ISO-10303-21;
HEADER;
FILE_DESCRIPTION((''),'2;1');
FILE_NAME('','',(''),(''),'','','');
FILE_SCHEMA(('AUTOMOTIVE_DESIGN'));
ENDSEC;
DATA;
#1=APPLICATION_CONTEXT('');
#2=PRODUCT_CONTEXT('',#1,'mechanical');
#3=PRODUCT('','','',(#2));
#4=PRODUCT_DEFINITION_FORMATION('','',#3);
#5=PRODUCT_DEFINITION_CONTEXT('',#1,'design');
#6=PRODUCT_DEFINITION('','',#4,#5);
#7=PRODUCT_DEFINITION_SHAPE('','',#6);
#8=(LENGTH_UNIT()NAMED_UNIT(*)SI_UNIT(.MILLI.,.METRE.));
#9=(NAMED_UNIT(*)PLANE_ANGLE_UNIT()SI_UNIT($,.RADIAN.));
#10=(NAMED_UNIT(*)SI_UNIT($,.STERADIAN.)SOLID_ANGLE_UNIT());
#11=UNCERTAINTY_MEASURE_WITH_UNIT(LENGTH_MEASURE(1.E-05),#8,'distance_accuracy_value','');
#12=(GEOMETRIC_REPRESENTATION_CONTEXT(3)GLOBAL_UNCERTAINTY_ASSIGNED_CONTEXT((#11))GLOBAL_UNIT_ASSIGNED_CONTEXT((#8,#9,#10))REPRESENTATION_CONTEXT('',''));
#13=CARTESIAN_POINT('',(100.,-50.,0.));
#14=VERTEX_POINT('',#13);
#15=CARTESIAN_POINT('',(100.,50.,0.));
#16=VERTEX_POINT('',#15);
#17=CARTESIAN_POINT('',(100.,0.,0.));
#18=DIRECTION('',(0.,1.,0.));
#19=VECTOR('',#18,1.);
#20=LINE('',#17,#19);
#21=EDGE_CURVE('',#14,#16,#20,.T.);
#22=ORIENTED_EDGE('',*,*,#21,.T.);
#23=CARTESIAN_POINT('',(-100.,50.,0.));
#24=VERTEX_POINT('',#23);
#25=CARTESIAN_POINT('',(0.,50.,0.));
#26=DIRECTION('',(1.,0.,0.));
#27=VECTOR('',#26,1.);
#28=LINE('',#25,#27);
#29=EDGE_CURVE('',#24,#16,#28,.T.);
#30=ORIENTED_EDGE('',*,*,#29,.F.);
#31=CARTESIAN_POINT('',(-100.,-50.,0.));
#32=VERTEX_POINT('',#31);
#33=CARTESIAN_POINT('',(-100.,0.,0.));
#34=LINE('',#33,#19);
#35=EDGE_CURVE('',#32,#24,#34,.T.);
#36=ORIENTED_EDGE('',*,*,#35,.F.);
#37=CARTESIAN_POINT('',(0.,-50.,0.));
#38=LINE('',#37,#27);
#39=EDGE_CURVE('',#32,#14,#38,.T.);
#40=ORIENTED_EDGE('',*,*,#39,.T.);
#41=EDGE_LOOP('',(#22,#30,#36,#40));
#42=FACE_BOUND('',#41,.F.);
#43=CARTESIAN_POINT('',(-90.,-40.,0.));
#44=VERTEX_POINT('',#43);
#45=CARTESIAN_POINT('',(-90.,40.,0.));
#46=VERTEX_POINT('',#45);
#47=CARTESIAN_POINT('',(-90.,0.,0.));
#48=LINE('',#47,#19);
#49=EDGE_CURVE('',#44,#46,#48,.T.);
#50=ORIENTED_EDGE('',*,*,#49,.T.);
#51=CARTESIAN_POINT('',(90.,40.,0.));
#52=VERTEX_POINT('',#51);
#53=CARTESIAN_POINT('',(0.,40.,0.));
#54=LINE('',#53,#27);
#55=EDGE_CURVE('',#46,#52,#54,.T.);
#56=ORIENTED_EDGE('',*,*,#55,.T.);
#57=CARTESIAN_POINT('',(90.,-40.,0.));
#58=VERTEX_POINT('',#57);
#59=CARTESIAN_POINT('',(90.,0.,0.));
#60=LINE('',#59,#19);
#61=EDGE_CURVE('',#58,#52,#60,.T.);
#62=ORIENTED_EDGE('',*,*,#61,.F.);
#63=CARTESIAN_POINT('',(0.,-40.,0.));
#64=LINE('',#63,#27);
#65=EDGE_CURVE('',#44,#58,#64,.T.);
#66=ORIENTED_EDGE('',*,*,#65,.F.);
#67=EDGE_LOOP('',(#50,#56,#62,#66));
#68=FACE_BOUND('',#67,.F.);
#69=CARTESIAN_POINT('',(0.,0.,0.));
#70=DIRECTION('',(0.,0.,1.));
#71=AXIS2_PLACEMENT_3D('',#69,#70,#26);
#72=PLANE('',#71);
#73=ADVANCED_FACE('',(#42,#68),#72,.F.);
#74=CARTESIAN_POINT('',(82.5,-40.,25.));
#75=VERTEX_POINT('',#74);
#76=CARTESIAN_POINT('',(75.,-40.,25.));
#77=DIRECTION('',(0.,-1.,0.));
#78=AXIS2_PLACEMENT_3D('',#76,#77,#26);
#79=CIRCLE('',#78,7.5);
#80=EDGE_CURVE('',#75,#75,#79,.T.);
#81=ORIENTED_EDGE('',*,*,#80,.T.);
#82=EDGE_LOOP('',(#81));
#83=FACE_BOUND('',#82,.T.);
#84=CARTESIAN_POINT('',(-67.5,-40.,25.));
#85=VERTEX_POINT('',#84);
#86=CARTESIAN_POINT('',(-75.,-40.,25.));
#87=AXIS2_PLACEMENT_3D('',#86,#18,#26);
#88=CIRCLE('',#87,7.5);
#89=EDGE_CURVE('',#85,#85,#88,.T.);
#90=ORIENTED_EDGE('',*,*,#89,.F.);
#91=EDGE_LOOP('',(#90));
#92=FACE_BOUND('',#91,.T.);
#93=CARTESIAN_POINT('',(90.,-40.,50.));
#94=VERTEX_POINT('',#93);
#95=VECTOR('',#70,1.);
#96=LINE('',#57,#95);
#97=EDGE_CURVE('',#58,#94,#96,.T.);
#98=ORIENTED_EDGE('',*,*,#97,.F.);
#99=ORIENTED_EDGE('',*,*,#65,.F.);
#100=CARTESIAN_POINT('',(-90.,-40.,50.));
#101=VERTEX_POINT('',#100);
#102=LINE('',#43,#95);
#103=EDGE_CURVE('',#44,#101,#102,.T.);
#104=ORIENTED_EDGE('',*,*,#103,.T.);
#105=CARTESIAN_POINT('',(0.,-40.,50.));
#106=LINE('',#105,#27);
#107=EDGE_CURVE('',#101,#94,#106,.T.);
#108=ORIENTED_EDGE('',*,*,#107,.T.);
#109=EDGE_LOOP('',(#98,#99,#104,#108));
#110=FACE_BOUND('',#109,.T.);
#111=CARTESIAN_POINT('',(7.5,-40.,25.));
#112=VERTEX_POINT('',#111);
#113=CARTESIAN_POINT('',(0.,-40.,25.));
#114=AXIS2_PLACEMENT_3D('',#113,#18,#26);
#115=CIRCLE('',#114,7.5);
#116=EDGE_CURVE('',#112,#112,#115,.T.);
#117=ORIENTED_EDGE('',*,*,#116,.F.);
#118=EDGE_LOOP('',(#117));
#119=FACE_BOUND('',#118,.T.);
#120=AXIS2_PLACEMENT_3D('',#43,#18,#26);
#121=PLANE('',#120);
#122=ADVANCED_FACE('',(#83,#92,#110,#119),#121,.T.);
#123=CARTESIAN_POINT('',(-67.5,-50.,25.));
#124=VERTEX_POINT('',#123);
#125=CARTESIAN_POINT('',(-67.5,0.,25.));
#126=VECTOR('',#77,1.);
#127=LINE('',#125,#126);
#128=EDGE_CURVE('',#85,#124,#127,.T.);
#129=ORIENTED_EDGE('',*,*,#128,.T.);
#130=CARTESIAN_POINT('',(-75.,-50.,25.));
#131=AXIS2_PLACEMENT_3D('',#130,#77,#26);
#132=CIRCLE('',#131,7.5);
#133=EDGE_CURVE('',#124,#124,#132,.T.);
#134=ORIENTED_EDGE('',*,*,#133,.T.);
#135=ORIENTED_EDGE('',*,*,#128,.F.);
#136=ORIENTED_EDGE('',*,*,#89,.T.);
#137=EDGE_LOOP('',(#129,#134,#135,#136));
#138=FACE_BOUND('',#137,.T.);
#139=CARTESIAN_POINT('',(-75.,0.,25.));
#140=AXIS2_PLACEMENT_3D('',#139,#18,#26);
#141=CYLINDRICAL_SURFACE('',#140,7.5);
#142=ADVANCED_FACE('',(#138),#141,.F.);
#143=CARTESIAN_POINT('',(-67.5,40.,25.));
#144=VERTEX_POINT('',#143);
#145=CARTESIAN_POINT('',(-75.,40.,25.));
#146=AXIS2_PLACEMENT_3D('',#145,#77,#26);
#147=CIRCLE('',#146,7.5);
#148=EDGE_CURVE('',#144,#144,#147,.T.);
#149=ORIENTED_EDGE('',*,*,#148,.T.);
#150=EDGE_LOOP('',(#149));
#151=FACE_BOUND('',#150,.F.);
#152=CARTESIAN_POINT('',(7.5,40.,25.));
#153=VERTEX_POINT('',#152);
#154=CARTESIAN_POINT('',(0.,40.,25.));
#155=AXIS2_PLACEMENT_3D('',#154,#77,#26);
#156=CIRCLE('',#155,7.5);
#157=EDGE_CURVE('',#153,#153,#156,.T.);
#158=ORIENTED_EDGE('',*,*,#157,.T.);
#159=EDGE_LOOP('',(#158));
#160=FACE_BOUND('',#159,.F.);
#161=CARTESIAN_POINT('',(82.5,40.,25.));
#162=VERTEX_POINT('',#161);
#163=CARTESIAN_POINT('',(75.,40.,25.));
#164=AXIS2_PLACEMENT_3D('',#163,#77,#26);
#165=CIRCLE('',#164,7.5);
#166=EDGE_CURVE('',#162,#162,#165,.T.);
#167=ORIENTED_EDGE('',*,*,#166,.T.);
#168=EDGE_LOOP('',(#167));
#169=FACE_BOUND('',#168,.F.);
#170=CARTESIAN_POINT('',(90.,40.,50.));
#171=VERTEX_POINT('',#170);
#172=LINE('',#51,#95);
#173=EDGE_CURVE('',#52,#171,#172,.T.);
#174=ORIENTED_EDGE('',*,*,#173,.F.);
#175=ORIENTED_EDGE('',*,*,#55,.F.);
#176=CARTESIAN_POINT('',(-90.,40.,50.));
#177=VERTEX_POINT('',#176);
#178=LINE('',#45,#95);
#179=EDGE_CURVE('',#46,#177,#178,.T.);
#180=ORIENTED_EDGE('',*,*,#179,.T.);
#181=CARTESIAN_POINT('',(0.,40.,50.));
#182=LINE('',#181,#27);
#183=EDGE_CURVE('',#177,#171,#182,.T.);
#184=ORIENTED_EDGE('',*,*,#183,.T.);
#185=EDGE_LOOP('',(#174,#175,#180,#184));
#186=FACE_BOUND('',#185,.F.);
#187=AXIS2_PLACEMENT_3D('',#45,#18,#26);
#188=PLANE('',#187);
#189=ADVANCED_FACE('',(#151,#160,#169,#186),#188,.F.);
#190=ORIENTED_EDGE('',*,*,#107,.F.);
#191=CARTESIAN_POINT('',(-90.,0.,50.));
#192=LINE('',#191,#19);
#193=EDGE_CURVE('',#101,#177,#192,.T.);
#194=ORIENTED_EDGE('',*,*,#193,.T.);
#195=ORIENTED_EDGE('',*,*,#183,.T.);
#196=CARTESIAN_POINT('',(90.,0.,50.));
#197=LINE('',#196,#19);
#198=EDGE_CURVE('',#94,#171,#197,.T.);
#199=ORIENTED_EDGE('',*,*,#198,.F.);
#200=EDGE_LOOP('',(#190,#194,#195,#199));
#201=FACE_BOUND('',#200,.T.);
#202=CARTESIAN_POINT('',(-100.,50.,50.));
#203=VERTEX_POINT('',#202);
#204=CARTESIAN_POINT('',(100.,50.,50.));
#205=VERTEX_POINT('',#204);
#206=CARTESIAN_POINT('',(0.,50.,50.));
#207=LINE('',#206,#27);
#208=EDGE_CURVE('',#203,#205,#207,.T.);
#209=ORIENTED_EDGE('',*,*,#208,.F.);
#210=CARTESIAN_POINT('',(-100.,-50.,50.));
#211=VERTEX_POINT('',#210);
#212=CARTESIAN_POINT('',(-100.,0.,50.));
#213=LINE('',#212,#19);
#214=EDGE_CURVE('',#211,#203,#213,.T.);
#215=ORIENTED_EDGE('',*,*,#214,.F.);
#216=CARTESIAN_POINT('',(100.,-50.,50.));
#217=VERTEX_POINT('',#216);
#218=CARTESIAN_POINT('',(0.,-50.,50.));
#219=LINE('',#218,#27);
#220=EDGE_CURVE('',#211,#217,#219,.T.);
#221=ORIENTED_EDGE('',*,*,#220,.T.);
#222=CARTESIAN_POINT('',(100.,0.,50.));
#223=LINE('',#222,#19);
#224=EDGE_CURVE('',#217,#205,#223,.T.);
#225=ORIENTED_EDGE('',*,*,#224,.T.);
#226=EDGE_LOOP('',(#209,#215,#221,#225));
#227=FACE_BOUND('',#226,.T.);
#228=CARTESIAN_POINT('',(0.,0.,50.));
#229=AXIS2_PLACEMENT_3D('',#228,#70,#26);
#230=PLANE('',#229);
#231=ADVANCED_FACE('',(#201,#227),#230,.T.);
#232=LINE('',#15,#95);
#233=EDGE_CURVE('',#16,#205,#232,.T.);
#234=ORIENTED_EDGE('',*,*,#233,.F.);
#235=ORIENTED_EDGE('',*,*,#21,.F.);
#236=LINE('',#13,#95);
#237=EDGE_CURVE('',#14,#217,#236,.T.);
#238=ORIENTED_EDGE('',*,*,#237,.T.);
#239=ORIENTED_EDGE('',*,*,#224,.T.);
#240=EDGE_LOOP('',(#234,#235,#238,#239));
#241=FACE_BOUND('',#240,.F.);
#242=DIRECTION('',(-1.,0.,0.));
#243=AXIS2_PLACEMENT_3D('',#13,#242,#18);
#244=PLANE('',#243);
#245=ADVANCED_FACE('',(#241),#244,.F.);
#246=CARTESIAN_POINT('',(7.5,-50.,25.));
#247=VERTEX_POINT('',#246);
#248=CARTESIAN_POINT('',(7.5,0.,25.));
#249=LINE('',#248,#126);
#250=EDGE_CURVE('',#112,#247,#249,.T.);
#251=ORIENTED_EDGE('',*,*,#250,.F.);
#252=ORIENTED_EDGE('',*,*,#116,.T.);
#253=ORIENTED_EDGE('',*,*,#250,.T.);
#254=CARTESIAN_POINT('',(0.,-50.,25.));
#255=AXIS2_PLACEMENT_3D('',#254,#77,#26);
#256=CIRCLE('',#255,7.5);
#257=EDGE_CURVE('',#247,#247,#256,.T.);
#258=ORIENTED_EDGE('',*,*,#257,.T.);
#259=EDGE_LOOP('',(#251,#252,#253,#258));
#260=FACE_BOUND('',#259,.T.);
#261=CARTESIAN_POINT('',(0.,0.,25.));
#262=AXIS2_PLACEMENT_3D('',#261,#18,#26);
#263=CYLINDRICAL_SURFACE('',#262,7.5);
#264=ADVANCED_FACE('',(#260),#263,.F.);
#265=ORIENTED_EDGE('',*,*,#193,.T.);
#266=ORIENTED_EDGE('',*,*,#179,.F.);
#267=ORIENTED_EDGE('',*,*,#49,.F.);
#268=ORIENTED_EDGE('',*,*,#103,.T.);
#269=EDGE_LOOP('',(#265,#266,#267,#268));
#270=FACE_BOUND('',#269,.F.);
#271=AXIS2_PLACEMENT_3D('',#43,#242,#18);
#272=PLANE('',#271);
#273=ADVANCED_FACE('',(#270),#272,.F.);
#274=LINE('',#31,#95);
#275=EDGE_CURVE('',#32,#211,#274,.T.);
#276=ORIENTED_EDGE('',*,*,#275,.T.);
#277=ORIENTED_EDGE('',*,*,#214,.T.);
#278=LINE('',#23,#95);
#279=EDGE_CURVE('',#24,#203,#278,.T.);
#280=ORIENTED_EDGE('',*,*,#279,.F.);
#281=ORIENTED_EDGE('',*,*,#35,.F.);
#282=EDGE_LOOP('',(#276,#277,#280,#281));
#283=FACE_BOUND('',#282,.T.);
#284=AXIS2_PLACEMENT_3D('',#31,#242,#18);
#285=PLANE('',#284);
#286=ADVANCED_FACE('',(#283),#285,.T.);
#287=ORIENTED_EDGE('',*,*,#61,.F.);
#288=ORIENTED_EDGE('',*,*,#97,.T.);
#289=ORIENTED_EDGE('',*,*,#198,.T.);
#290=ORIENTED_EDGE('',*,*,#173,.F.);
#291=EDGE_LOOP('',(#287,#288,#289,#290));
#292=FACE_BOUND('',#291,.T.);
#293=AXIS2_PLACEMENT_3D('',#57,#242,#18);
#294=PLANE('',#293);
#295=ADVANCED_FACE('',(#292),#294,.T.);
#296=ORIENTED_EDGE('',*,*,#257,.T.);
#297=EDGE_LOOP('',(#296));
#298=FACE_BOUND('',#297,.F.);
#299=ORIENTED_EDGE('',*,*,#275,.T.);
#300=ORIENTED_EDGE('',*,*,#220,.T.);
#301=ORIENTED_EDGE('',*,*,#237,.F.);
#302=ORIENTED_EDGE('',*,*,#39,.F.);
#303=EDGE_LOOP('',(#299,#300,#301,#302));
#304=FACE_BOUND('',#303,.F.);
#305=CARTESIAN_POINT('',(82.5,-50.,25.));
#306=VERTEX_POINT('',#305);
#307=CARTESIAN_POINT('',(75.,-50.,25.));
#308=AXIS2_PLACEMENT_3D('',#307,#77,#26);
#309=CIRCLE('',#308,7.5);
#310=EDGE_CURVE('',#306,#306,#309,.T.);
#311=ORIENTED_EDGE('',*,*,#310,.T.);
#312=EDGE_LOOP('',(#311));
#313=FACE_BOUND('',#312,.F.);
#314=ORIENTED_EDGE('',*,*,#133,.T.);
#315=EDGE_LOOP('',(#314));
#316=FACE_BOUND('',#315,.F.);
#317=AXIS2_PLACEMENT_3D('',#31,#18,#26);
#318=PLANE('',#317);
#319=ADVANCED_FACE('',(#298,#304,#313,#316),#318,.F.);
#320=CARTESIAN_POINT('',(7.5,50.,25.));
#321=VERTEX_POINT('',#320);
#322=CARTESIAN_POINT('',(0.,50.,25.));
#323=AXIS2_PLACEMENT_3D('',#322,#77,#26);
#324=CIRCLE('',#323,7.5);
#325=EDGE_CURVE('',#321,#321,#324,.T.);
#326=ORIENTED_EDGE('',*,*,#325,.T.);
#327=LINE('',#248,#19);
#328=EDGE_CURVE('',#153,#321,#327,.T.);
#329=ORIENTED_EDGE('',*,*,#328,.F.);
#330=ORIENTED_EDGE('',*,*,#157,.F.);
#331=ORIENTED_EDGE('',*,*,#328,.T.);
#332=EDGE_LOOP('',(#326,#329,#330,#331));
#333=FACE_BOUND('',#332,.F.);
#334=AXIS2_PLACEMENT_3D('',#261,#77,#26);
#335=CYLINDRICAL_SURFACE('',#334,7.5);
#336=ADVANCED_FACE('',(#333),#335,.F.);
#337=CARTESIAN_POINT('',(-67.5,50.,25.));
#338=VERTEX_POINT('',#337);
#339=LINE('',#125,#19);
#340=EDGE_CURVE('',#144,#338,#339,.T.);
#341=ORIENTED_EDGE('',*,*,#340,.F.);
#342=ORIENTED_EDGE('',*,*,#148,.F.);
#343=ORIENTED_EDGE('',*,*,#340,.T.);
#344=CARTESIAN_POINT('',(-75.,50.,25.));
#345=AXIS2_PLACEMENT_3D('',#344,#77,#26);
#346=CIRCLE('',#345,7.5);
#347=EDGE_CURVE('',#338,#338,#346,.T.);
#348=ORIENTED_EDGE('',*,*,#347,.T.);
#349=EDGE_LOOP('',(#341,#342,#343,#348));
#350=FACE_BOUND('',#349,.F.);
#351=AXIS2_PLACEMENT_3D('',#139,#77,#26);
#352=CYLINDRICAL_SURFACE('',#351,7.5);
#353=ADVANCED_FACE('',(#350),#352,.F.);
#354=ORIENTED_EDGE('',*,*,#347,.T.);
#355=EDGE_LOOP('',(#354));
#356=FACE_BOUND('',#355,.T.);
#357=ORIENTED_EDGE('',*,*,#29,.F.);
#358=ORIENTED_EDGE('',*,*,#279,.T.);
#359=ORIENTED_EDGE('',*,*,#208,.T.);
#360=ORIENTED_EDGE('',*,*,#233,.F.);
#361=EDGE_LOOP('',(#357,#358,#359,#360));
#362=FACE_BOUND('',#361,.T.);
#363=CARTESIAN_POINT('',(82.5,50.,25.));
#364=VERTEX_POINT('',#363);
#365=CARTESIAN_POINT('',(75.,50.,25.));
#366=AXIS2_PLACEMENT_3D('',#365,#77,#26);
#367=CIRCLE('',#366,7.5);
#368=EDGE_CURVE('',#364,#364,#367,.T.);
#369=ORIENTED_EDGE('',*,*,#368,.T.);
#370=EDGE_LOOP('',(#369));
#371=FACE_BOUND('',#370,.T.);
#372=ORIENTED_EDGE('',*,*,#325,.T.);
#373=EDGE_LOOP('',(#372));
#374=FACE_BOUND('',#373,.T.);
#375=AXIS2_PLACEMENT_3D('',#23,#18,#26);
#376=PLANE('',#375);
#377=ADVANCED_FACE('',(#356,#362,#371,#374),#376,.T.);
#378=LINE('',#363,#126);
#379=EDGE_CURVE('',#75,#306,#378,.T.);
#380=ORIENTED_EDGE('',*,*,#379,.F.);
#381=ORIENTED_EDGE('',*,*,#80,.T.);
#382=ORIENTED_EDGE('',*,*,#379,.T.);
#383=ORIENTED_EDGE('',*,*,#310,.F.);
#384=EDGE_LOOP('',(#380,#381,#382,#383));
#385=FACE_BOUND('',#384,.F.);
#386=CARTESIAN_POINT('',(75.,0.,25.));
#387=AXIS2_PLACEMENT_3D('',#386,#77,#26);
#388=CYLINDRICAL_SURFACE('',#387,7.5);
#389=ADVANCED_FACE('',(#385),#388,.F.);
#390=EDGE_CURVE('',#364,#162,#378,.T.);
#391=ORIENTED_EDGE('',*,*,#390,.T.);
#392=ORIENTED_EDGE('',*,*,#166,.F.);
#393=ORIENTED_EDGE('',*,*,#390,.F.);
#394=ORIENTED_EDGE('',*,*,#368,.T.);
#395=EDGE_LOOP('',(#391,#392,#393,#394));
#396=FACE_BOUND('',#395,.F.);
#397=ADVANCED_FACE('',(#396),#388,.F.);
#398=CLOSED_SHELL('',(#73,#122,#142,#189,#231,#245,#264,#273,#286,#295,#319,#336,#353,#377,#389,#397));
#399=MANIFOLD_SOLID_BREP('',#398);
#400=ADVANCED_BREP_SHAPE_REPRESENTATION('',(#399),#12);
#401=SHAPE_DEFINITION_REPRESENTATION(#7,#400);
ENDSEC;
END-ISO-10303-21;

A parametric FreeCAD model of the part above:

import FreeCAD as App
import Part
import Sketcher


def add_polygon(sketch, points):
    """Adds a closed chain of lines whose ends are joined by coincident constraints."""
    first, n = sketch.GeometryCount, len(points)
    for a, b in zip(points, points[1:] + points[:1]):
        sketch.addGeometry(Part.LineSegment(App.Vector(*a, 0), App.Vector(*b, 0)), False)
    for i in range(n):
        sketch.addConstraint(Sketcher.Constraint("Coincident", first + i, 2, first + (i + 1) % n, 1))

doc = App.newDocument("Part")
body = doc.addObject("PartDesign::Body", "Body")

# Sketch on XY plane
sketch1 = body.newObject("Sketcher::SketchObject", "Sketch")
sketch1.AttachmentSupport = (doc.getObject("XY_Plane"), [""])
sketch1.MapMode = "FlatFace"
add_polygon(sketch1, [(-100, 50), (-100, -50), (100, -50), (100, 50)])  # lines 0-3
add_polygon(sketch1, [(90, -40), (-90, -40), (-90, 40), (90, 40)])  # lines 4-7
sketch1.addConstraint(Sketcher.Constraint("Vertical", 0))
sketch1.addConstraint(Sketcher.Constraint("Horizontal", 1))
sketch1.addConstraint(Sketcher.Constraint("Vertical", 2))
sketch1.addConstraint(Sketcher.Constraint("Horizontal", 3))
sketch1.addConstraint(Sketcher.Constraint("Horizontal", 4))
sketch1.addConstraint(Sketcher.Constraint("Vertical", 5))
sketch1.addConstraint(Sketcher.Constraint("Horizontal", 6))
sketch1.addConstraint(Sketcher.Constraint("Vertical", 7))
sketch1.addConstraint(Sketcher.Constraint("Symmetric", 0, 2, 2, 2, -1, 1))
sketch1.addConstraint(Sketcher.Constraint("Symmetric", 4, 2, 6, 2, -1, 1))
sketch1.addConstraint(Sketcher.Constraint("DistanceX", 1, 1, 1, 2, 200.0))
sketch1.addConstraint(Sketcher.Constraint("DistanceX", 4, 2, 4, 1, 180.0))
sketch1.addConstraint(Sketcher.Constraint("DistanceY", 0, 2, 0, 1, 100.0))
sketch1.addConstraint(Sketcher.Constraint("DistanceY", 5, 1, 5, 2, 80.0))
pad1 = body.newObject("PartDesign::Pad", "Pad")
pad1.Profile = sketch1
pad1.Length = 50

# Sketch on XZ plane
sketch2 = body.newObject("Sketcher::SketchObject", "Sketch001")
sketch2.AttachmentSupport = (doc.getObject("XZ_Plane"), [""])
sketch2.MapMode = "FlatFace"
sketch2.addGeometry(Part.Circle(App.Vector(0, 25, 0), App.Vector(0, 0, 1), 8), False)
sketch2.addGeometry(Part.Circle(App.Vector(-75, 25, 0), App.Vector(0, 0, 1), 8), False)
sketch2.addGeometry(Part.Circle(App.Vector(75, 25, 0), App.Vector(0, 0, 1), 8), False)
sketch2.addConstraint(Sketcher.Constraint("Equal", 0, 1))
sketch2.addConstraint(Sketcher.Constraint("Equal", 1, 2))
sketch2.addConstraint(Sketcher.Constraint("Symmetric", 1, 3, 2, 3, -2))
sketch2.addConstraint(Sketcher.Constraint("PointOnObject", 0, 3, -2))
sketch2.addConstraint(Sketcher.Constraint("Horizontal", 0, 3, 1, 3))
sketch2.addConstraint(Sketcher.Constraint("Diameter", 0, 15.0))
sketch2.addConstraint(Sketcher.Constraint("DistanceY", -1, 1, 0, 3, 25.0))
sketch2.addConstraint(Sketcher.Constraint("DistanceX", 1, 3, -1, 1, 75.0))
pocket1 = body.newObject("PartDesign::Pocket", "Pocket")
pocket1.Profile = sketch2
pocket1.Length = 100
pocket1.Midplane = True

doc.recompute()
